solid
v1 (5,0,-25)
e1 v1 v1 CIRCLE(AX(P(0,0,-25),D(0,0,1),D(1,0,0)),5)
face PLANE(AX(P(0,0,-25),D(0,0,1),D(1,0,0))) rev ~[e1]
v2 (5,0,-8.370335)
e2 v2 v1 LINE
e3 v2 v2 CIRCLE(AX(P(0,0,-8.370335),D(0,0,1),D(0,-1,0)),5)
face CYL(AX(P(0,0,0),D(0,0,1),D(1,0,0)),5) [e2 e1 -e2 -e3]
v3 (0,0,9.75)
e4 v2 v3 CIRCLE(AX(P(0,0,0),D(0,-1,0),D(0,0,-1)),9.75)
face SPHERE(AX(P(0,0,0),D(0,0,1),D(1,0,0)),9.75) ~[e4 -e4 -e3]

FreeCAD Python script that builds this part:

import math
import FreeCAD as App
import Part
import Sketcher
from FreeCAD import Vector

doc = App.newDocument("Part")
body = doc.addObject("PartDesign::Body", "Body")

sketch1 = body.newObject("Sketcher::SketchObject", "Sketch")
sketch1.AttachmentSupport = (doc.getObject("XZ_Plane"), [""])
sketch1.MapMode = "FlatFace"
sketch1.addGeometry(Part.LineSegment(Vector(0, 10, 0), Vector(0, -10, 0)), False)
sketch1.addGeometry(Part.ArcOfCircle(Part.Circle(Vector(0, 0, 0), Vector(0, 0, 1), 10), math.radians(-90), math.radians(90)), False)
sketch1.addConstraint(Sketcher.Constraint("Coincident", 0, 1, 1, 2))
sketch1.addConstraint(Sketcher.Constraint("Coincident", 1, 1, 0, 2))
sketch1.addConstraint(Sketcher.Constraint("Vertical", 0))
sketch1.addConstraint(Sketcher.Constraint("Coincident", 1, 3, -1, 1))
sketch1.addConstraint(Sketcher.Constraint("PointOnObject", 0, 1, -2))
sketch1.addConstraint(Sketcher.Constraint("Radius", 1, 9.75))
revolution = body.newObject("PartDesign::Revolution", "Revolution")
revolution.Profile = sketch1
revolution.ReferenceAxis = (sketch1, ["V_Axis"])
revolution.Angle = 360

sketch2 = body.newObject("Sketcher::SketchObject", "Sketch001")
sketch2.AttachmentSupport = (doc.getObject("XY_Plane"), [""])
sketch2.MapMode = "FlatFace"
sketch2.addGeometry(Part.Circle(Vector(0, 0, 0), Vector(0, 0, 1), 5), False)
sketch2.addConstraint(Sketcher.Constraint("Coincident", 0, 3, -1, 1))
sketch2.addConstraint(Sketcher.Constraint("Diameter", 0, 10.0))
pad1 = body.newObject("PartDesign::Pad", "Pad")
pad1.Profile = sketch2
pad1.Length = 25
pad1.Reversed = True

doc.recompute()
